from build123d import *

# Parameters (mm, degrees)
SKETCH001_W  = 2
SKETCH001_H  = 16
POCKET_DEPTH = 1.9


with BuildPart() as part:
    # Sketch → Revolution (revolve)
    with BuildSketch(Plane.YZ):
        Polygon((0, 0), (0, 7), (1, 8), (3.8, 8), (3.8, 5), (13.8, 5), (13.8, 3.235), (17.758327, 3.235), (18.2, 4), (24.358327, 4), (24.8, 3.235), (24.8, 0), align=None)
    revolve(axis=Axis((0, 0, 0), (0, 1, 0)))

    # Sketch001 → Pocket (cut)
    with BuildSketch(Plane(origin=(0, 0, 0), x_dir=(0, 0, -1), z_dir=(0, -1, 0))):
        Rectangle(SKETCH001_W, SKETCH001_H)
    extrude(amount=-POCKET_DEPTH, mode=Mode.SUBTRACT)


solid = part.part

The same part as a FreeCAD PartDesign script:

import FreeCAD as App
import Part
import Sketcher

V = App.Vector
Q = App.Units.Quantity

doc = App.newDocument("Part")
body = doc.addObject("PartDesign::Body", "Body")

# Sketch on YZ plane
sketch1 = doc.addObject("Sketcher::SketchObject", "Sketch")
body.addObject(sketch1)
sketch1.AttachmentSupport = (doc.YZ_Plane, [""])
sketch1.MapMode = "FlatFace"
sketch1.addGeometry(Part.LineSegment(V(0, 7, 0), V(0, 0, 0)), False)
sketch1.addGeometry(Part.LineSegment(V(0, 0, 0), V(24.8, 0, 0)), False)
sketch1.addGeometry(Part.LineSegment(V(24.8, 0, 0), V(24.8, 3.235, 0)), False)
sketch1.addGeometry(Part.LineSegment(V(24.8, 3.235, 0), V(24.358327, 4, 0)), False)
sketch1.addGeometry(Part.LineSegment(V(24.358327, 4, 0), V(18.2, 4, 0)), False)
sketch1.addGeometry(Part.LineSegment(V(18.2, 4, 0), V(17.758327, 3.235, 0)), False)
sketch1.addGeometry(Part.LineSegment(V(17.758327, 3.235, 0), V(13.8, 3.235, 0)), False)
sketch1.addGeometry(Part.LineSegment(V(13.8, 3.235, 0), V(13.8, 5, 0)), False)
sketch1.addGeometry(Part.LineSegment(V(13.8, 5, 0), V(3.8, 5, 0)), False)
sketch1.addGeometry(Part.LineSegment(V(3.8, 5, 0), V(3.8, 8, 0)), False)
sketch1.addGeometry(Part.LineSegment(V(3.8, 8, 0), V(1, 8, 0)), False)
sketch1.addGeometry(Part.LineSegment(V(1, 8, 0), V(0, 7, 0)), False)
sketch1.addConstraint(Sketcher.Constraint("Coincident", 0, 2, 1, 1))
sketch1.addConstraint(Sketcher.Constraint("Coincident", 1, 2, 2, 1))
sketch1.addConstraint(Sketcher.Constraint("Coincident", 2, 2, 3, 1))
sketch1.addConstraint(Sketcher.Constraint("Coincident", 3, 2, 4, 1))
sketch1.addConstraint(Sketcher.Constraint("Coincident", 4, 2, 5, 1))
sketch1.addConstraint(Sketcher.Constraint("Coincident", 5, 2, 6, 1))
sketch1.addConstraint(Sketcher.Constraint("Coincident", 6, 2, 7, 1))
sketch1.addConstraint(Sketcher.Constraint("Coincident", 7, 2, 8, 1))
sketch1.addConstraint(Sketcher.Constraint("Coincident", 8, 2, 9, 1))
sketch1.addConstraint(Sketcher.Constraint("Coincident", 9, 2, 10, 1))
sketch1.addConstraint(Sketcher.Constraint("Coincident", 10, 2, 11, 1))
sketch1.addConstraint(Sketcher.Constraint("Coincident", 11, 2, 0, 1))
sketch1.addConstraint(Sketcher.Constraint("Vertical", 0))
sketch1.addConstraint(Sketcher.Constraint("Horizontal", 1))
sketch1.addConstraint(Sketcher.Constraint("Vertical", 2))
sketch1.addConstraint(Sketcher.Constraint("Horizontal", 4))
sketch1.addConstraint(Sketcher.Constraint("Horizontal", 6))
sketch1.addConstraint(Sketcher.Constraint("Vertical", 7))
sketch1.addConstraint(Sketcher.Constraint("Horizontal", 8))
sketch1.addConstraint(Sketcher.Constraint("Vertical", 9))
sketch1.addConstraint(Sketcher.Constraint("Horizontal", 10))
sketch1.addConstraint(Sketcher.Constraint("Coincident", 0, 2, -1, 1))
sketch1.addConstraint(Sketcher.Constraint("Horizontal", 2, 2, 5, 2))
sketch1.addConstraint(Sketcher.Constraint("Equal", 3, 5))
sketch1.addConstraint(Sketcher.Constraint("DistanceX", 8, 2, 8, 1, Q("10 mm")))
sketch1.addConstraint(Sketcher.Constraint("DistanceY", 0, 2, 0, 1, Q("7 mm")))
sketch1.addConstraint(Sketcher.Constraint("DistanceY", 9, 1, 9, 2, Q("3 mm")))
sketch1.addConstraint(Sketcher.Constraint("Angle", 3, Q("120.000002 deg")))
sketch1.addConstraint(Sketcher.Constraint("Angle", 11, Q("-135 deg")))
sketch1.addConstraint(Sketcher.Constraint("DistanceX", 1, 1, 1, 2, Q("24.8 mm")))
sketch1.addConstraint(Sketcher.Constraint("DistanceX", 10, 2, 10, 1, Q("2.8 mm")))
sketch1.addConstraint(Sketcher.Constraint("DistanceY", -1, 1, 3, 2, Q("4 mm")))
sketch1.addConstraint(Sketcher.Constraint("DistanceY", -1, 1, 7, 2, Q("5 mm")))
sketch1.addConstraint(Sketcher.Constraint("DistanceX", -1, 1, 4, 2, Q("18.2 mm")))
sketch1.addConstraint(Sketcher.Constraint("DistanceY", 2, 1, 2, 2, Q("3.235 mm")))
revolution = doc.addObject("PartDesign::Revolution", "Revolution")
body.addObject(revolution)
revolution.Profile = sketch1
revolution.ReferenceAxis = (sketch1, ["H_Axis"])
revolution.Angle = 360

# Sketch on XZ plane
sketch2 = doc.addObject("Sketcher::SketchObject", "Sketch001")
body.addObject(sketch2)
sketch2.AttachmentSupport = (doc.XZ_Plane, [""])
sketch2.MapMode = "FlatFace"
sketch2.addGeometry(Part.LineSegment(V(8, 1, 0), V(-8, 1, 0)), False)
sketch2.addGeometry(Part.LineSegment(V(-8, 1, 0), V(-8, -1, 0)), False)
sketch2.addGeometry(Part.LineSegment(V(-8, -1, 0), V(8, -1, 0)), False)
sketch2.addGeometry(Part.LineSegment(V(8, -1, 0), V(8, 1, 0)), False)
sketch2.addConstraint(Sketcher.Constraint("Coincident", 0, 2, 1, 1))
sketch2.addConstraint(Sketcher.Constraint("Coincident", 1, 2, 2, 1))
sketch2.addConstraint(Sketcher.Constraint("Coincident", 2, 2, 3, 1))
sketch2.addConstraint(Sketcher.Constraint("Coincident", 3, 2, 0, 1))
sketch2.addConstraint(Sketcher.Constraint("Horizontal", 0))
sketch2.addConstraint(Sketcher.Constraint("Vertical", 1))
sketch2.addConstraint(Sketcher.Constraint("Horizontal", 2))
sketch2.addConstraint(Sketcher.Constraint("Vertical", 3))
sketch2.addConstraint(Sketcher.Constraint("Symmetric", 0, 2, 2, 2, -1, 1))
sketch2.addConstraint(Sketcher.Constraint("DistanceX", 0, 2, 0, 1, Q("16 mm")))
sketch2.addConstraint(Sketcher.Constraint("DistanceY", 1, 2, 1, 1, Q("2 mm")))
pocket1 = doc.addObject("PartDesign::Pocket", "Pocket")
body.addObject(pocket1)
pocket1.Profile = sketch2
pocket1.Length = 1.9

doc.recompute()
